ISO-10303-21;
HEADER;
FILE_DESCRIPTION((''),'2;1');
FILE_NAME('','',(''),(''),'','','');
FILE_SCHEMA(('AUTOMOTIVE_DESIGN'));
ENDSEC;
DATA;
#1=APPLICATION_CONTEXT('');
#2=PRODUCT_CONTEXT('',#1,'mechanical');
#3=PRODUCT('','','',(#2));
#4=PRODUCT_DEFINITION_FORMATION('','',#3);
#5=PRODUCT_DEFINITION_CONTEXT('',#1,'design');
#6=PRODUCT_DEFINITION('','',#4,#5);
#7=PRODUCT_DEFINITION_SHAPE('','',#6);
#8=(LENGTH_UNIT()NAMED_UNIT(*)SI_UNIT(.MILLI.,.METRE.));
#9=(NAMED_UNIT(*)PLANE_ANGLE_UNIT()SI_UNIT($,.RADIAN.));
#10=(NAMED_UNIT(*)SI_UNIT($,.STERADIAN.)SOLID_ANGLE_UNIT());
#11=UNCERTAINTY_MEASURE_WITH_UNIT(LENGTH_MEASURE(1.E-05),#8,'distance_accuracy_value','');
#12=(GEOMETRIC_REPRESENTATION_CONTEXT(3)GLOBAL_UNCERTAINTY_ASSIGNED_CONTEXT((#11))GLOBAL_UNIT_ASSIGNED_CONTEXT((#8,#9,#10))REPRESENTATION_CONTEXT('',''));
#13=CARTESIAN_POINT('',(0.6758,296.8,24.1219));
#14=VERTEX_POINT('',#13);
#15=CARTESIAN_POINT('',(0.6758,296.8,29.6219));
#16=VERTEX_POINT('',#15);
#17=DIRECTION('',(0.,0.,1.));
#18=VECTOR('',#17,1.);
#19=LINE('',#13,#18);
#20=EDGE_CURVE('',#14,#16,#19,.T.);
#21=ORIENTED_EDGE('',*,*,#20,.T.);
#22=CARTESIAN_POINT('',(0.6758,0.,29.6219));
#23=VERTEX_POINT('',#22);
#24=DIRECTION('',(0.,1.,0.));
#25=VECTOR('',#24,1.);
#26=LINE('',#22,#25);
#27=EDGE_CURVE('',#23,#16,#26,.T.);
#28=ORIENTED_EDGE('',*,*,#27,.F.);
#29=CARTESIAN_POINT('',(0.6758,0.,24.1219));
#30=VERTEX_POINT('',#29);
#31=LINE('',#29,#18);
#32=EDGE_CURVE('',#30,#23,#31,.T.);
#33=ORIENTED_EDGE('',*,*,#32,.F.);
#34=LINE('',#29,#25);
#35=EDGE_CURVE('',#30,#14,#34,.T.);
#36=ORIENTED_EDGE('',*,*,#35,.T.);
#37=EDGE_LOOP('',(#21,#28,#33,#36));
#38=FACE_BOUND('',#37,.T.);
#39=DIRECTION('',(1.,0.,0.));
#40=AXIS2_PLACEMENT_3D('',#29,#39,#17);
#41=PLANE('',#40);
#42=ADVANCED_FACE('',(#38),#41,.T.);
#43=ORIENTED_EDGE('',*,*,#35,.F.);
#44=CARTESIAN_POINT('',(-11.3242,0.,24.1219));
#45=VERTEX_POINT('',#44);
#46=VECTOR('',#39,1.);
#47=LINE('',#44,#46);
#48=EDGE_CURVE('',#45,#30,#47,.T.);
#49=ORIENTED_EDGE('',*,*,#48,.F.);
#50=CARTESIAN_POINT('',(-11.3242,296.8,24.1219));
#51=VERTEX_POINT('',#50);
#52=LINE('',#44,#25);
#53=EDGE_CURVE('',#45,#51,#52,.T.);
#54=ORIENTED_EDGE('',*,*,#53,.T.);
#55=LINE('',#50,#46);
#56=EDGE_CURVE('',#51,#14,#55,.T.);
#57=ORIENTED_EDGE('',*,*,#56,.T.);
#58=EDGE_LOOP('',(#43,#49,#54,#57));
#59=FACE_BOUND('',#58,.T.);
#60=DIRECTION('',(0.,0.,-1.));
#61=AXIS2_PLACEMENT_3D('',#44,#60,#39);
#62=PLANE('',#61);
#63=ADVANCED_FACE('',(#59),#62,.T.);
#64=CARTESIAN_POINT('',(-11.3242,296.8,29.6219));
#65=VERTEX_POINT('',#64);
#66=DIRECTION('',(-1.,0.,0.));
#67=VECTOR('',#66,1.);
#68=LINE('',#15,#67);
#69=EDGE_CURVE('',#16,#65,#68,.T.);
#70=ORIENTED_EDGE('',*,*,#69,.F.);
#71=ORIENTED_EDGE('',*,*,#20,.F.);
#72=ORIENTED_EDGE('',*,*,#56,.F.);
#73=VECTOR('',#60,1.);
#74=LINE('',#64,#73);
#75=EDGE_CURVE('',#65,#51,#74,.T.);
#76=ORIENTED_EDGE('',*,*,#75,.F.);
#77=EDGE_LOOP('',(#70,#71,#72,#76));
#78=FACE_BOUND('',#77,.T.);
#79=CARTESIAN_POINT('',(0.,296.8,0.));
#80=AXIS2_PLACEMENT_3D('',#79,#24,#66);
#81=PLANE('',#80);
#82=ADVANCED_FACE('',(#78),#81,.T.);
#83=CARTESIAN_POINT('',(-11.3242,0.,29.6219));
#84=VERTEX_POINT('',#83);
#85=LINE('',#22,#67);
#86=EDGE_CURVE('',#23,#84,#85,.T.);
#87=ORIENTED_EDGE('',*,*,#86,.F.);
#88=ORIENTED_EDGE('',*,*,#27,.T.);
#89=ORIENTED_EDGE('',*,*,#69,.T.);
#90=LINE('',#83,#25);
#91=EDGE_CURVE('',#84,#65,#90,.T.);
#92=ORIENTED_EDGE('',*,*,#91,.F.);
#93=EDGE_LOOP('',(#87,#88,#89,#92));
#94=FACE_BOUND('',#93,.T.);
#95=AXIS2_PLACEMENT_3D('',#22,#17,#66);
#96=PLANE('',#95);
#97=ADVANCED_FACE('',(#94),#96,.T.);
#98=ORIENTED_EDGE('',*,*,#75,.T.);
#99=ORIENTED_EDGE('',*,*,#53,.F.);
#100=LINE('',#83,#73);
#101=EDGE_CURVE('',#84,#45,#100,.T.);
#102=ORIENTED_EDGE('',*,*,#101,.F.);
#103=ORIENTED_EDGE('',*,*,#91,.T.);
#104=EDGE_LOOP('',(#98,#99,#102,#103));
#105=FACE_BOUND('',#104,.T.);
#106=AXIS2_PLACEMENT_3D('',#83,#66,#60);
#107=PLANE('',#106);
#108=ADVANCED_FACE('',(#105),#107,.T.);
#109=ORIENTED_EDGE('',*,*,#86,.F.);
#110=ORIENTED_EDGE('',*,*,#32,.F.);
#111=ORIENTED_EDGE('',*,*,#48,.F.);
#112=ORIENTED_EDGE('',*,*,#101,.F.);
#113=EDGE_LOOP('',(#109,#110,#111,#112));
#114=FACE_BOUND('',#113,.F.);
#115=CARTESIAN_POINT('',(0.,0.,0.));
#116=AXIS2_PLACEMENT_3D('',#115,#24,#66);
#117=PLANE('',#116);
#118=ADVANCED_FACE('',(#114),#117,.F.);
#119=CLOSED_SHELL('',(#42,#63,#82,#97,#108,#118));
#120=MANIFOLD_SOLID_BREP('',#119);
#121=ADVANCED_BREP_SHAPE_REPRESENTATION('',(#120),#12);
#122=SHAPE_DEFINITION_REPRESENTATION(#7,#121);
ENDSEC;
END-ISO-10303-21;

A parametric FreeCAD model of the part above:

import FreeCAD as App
import Part
import Sketcher

V = App.Vector


def add_polygon(sketch, points):
    """Adds a closed chain of lines whose ends are joined by coincident constraints."""
    first, n = sketch.GeometryCount, len(points)
    for a, b in zip(points, points[1:] + points[:1]):
        sketch.addGeometry(Part.LineSegment(App.Vector(*a, 0), App.Vector(*b, 0)), False)
    for i in range(n):
        sketch.addConstraint(Sketcher.Constraint("Coincident", first + i, 2, first + (i + 1) % n, 1))

doc = App.newDocument("Part")
body = doc.addObject("PartDesign::Body", "Body")

sketch1 = body.newObject("Sketcher::SketchObject", "Sketch")
sketch1.AttachmentSupport = (doc.getObject("XZ_Plane"), [""])
sketch1.MapMode = "FlatFace"
add_polygon(sketch1, [(-11, 24), (-11, 30), (1, 30), (1, 24)])
sketch1.addConstraint(Sketcher.Constraint("Vertical", 0))
sketch1.addConstraint(Sketcher.Constraint("Horizontal", 1))
sketch1.addConstraint(Sketcher.Constraint("Vertical", 2))
sketch1.addConstraint(Sketcher.Constraint("Horizontal", 3))
sketch1.addConstraint(Sketcher.Constraint("DistanceX", 1, 1, 1, 2, 12.0))
sketch1.addConstraint(Sketcher.Constraint("DistanceY", 0, 1, 0, 2, 5.5))
sketch1.addConstraint(Sketcher.Constraint("DistanceY", -1, 1, 0, 2, 29.622))
sketch1.addConstraint(Sketcher.Constraint("DistanceX", 0, 2, -1, 1, 11.3242))
pad1 = body.newObject("PartDesign::Pad", "Pad")
pad1.Profile = sketch1
pad1.Length = 296.8
pad1.Reversed = True

doc.recompute()
